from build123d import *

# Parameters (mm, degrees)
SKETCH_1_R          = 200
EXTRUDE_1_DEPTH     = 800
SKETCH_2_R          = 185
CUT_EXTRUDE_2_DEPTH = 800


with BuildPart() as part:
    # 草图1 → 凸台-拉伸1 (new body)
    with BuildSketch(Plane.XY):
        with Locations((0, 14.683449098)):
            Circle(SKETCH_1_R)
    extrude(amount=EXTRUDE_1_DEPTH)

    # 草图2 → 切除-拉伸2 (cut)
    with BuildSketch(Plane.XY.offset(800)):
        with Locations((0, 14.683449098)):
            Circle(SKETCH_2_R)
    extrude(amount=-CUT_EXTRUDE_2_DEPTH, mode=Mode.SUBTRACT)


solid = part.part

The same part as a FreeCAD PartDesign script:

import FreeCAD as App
import Part
import Sketcher
from FreeCAD import Vector

doc = App.newDocument("Part")
body = doc.addObject("PartDesign::Body", "Body")

# Sketch on XY plane
sketch1 = body.newObject("Sketcher::SketchObject", "Sketch")
sketch1.AttachmentSupport = (doc.getObject("XY_Plane"), [""])
sketch1.MapMode = "FlatFace"
sketch1.addGeometry(Part.Circle(Vector(0, 15, 0), Vector(0, 0, 1), 200), False)
sketch1.addConstraint([
    Sketcher.Constraint("PointOnObject", 0, 3, -2),
    Sketcher.Constraint("Diameter", 0, 400.0),
    Sketcher.Constraint("DistanceY", -1, 1, 0, 3, 14.683449),
])
pad1 = body.newObject("PartDesign::Pad", "Pad")
pad1.Profile = sketch1
pad1.Length = 800

# Sketch on XY plane
sketch2 = body.newObject("Sketcher::SketchObject", "Sketch001")
sketch2.AttachmentSupport = (doc.getObject("XY_Plane"), [""])
sketch2.MapMode = "FlatFace"
sketch2.AttachmentOffset = App.Placement(Vector(0, 0, 800), App.Rotation())
sketch2.addGeometry(Part.Circle(Vector(0, 15, 0), Vector(0, 0, 1), 185), False)
sketch2.addConstraint([
    Sketcher.Constraint("PointOnObject", 0, 3, -2),
    Sketcher.Constraint("Diameter", 0, 370.0),
    Sketcher.Constraint("DistanceY", -1, 1, 0, 3, 14.683449),
])
pocket1 = body.newObject("PartDesign::Pocket", "Pocket")
pocket1.Profile = sketch2
pocket1.Length = 800

doc.recompute()
